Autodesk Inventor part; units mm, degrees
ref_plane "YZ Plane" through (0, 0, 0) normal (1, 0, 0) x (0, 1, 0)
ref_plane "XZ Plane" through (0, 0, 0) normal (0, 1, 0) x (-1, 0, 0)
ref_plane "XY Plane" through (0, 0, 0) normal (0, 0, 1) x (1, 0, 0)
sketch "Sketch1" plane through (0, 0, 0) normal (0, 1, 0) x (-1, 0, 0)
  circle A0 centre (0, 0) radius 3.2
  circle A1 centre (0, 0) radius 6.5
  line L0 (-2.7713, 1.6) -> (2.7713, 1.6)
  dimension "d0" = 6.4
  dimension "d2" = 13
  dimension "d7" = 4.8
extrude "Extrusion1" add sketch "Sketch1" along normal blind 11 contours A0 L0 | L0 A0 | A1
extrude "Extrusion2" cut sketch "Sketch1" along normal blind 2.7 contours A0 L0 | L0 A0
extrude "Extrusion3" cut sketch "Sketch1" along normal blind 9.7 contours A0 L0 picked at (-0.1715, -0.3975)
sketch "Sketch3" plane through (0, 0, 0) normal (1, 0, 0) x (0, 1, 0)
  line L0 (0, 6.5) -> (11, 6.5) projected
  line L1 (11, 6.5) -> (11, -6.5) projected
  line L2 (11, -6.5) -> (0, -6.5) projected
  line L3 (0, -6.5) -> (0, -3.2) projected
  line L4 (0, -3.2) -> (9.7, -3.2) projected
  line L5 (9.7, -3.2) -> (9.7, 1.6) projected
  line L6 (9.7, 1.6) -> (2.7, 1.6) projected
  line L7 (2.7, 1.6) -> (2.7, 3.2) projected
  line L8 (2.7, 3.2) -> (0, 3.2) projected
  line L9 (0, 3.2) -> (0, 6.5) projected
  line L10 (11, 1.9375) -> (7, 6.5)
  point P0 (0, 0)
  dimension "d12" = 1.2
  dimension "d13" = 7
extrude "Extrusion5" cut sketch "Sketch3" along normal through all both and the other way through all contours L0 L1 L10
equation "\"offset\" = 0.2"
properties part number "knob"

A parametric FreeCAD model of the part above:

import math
import FreeCAD as App
import Part
import Sketcher

V = App.Vector
Q = App.Units.Quantity

doc = App.newDocument("Part")
params = doc.addObject("Spreadsheet::Sheet", "Params")
for row, (alias, value) in enumerate([
    ("sketch1_diameter", "13 mm"),
    ("pad1_length", "11 mm"),
    ("sketch2_diameter", "6.4 mm"),
    ("pocket1_length", "2.7 mm"),
    ("sketch3_radius", "3.2 mm"),
    ("pocket2_length", "9.7 mm"),
    ("sketch4_width", "4 mm"),
], start=1):
    params.set(f"A{row}", alias)
    params.set(f"B{row}", "=" + value)
    params.setAlias(f"B{row}", alias)

body = doc.addObject("PartDesign::Body", "Body")

# Sketch on XZ plane
sketch1 = body.newObject("Sketcher::SketchObject", "Sketch")
sketch1.AttachmentSupport = (doc.getObject("XZ_Plane"), [""])
sketch1.MapMode = "FlatFace"
sketch1.addGeometry(Part.Circle(V(0, 0, 0), V(0, 0, 1), 6), False)
sketch1.addConstraint(Sketcher.Constraint("Coincident", 0, 3, -1, 1))
sketch1.addConstraint(Sketcher.Constraint("Diameter", 0, Q("13 mm")))
sketch1.setExpression("Constraints[1]", "Params.sketch1_diameter")
pad1 = body.newObject("PartDesign::Pad", "Pad")
pad1.Profile = sketch1
pad1.setExpression("Length", "Params.pad1_length")
pad1.Reversed = True

# Sketch on XZ plane
sketch2 = body.newObject("Sketcher::SketchObject", "Sketch001")
sketch2.AttachmentSupport = (doc.getObject("XZ_Plane"), [""])
sketch2.MapMode = "FlatFace"
sketch2.addGeometry(Part.Circle(V(0, 0, 0), V(0, 0, 1), 3.2), False)
sketch2.addConstraint(Sketcher.Constraint("Coincident", 0, 3, -1, 1))
sketch2.addConstraint(Sketcher.Constraint("Diameter", 0, Q("6.4 mm")))
sketch2.setExpression("Constraints[1]", "Params.sketch2_diameter")
pocket1 = body.newObject("PartDesign::Pocket", "Pocket")
pocket1.Profile = sketch2
pocket1.setExpression("Length", "Params.pocket1_length")

# Sketch on XZ plane
sketch3 = body.newObject("Sketcher::SketchObject", "Sketch002")
sketch3.AttachmentSupport = (doc.getObject("XZ_Plane"), [""])
sketch3.MapMode = "FlatFace"
sketch3.addGeometry(Part.ArcOfCircle(Part.Circle(V(0, 0, 0), V(0, 0, 1), 3.2), math.radians(150), math.radians(390)), False)
sketch3.addGeometry(Part.LineSegment(V(2.8, 1.6, 0), V(-2.8, 1.6, 0)), False)
sketch3.addConstraint(Sketcher.Constraint("Coincident", 0, 1, 1, 2))
sketch3.addConstraint(Sketcher.Constraint("Coincident", 1, 1, 0, 2))
sketch3.addConstraint(Sketcher.Constraint("Horizontal", 1))
sketch3.addConstraint(Sketcher.Constraint("Coincident", 0, 3, -1, 1))
sketch3.addConstraint(Sketcher.Constraint("Radius", 0, Q("3.2 mm")))
sketch3.addConstraint(Sketcher.Constraint("DistanceY", -1, 1, 0, 1, Q("1.6 mm")))
sketch3.setExpression("Constraints[4]", "Params.sketch3_radius")
pocket2 = body.newObject("PartDesign::Pocket", "Pocket001")
pocket2.Profile = sketch3
pocket2.setExpression("Length", "Params.pocket2_length")

# Sketch on YZ plane
sketch4 = body.newObject("Sketcher::SketchObject", "Sketch003")
sketch4.AttachmentSupport = (doc.getObject("YZ_Plane"), [""])
sketch4.MapMode = "FlatFace"
sketch4.addGeometry(Part.LineSegment(V(11, 6.5, 0), V(7, 6.5, 0)), False)
sketch4.addGeometry(Part.LineSegment(V(7, 6.5, 0), V(11, 1.9, 0)), False)
sketch4.addGeometry(Part.LineSegment(V(11, 1.9, 0), V(11, 6.5, 0)), False)
sketch4.addConstraint(Sketcher.Constraint("Coincident", 0, 2, 1, 1))
sketch4.addConstraint(Sketcher.Constraint("Coincident", 1, 2, 2, 1))
sketch4.addConstraint(Sketcher.Constraint("Coincident", 2, 2, 0, 1))
sketch4.addConstraint(Sketcher.Constraint("Horizontal", 0))
sketch4.addConstraint(Sketcher.Constraint("Vertical", 2))
sketch4.addConstraint(Sketcher.Constraint("DistanceX", -1, 1, 0, 2, Q("7 mm")))
sketch4.addConstraint(Sketcher.Constraint("DistanceX", 0, 2, 0, 1, Q("4 mm")))
sketch4.addConstraint(Sketcher.Constraint("DistanceY", -1, 1, 0, 2, Q("6.5 mm")))
sketch4.addConstraint(Sketcher.Constraint("DistanceY", 2, 1, 2, 2, Q("4.5625 mm")))
sketch4.setExpression("Constraints[6]", "Params.sketch4_width")
pocket3 = body.newObject("PartDesign::Pocket", "Pocket002")
pocket3.Profile = sketch4
pocket3.Type = "ThroughAll"
pocket3.Midplane = True

doc.recompute()
